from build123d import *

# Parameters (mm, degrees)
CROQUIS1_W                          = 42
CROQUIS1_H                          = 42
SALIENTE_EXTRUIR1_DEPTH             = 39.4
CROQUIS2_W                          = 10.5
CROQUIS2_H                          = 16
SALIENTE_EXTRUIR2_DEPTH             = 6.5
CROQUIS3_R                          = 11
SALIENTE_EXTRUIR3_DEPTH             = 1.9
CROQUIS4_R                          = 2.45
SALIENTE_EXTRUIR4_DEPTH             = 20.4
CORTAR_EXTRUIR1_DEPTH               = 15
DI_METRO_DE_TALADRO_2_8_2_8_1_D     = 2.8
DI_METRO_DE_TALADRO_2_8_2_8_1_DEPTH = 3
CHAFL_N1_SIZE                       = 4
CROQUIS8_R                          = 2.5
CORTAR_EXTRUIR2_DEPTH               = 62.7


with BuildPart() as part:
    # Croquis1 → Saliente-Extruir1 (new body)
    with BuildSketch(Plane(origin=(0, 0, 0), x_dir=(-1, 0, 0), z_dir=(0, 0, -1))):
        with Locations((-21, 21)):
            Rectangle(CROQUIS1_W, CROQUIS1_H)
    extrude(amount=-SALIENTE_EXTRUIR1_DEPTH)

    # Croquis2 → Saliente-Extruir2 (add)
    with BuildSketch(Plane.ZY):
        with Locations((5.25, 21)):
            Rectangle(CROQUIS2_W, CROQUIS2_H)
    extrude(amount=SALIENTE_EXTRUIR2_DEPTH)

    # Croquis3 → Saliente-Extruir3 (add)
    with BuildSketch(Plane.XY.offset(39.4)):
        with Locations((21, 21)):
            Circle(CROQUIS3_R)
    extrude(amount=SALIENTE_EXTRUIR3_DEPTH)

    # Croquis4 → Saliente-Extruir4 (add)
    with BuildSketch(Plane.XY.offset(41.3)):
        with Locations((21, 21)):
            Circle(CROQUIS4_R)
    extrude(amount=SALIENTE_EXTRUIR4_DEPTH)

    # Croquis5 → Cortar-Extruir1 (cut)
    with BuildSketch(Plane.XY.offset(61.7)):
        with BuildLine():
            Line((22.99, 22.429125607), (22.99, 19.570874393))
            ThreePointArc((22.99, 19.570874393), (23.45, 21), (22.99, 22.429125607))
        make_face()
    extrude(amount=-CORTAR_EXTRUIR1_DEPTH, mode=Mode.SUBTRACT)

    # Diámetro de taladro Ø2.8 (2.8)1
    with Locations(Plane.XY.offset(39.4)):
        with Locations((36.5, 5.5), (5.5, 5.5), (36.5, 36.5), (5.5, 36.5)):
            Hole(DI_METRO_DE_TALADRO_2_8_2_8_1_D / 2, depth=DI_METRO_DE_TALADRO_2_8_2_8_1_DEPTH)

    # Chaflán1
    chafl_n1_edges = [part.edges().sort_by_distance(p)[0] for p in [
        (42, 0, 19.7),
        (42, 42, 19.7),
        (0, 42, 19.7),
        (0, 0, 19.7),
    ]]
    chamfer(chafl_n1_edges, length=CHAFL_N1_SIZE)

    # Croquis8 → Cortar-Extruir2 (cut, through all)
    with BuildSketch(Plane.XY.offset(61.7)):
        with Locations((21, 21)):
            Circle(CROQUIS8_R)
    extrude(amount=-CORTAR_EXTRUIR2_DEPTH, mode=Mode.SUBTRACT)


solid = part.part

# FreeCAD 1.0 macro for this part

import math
import FreeCAD as App
import Part
import Sketcher


def edges_at(feature, points):
    """Names of the edges that pass closest to the given points."""
    edges = feature.Shape.Edges
    near = lambda p: min(range(len(edges)), key=lambda i: edges[i].distToShape(Part.Vertex(*p))[0])
    return sorted({f"Edge{near(p) + 1}" for p in points})

doc = App.newDocument("Part")
body = doc.addObject("PartDesign::Body", "Body")

# Sketch on XY plane
sketch1 = body.newObject("Sketcher::SketchObject", "Sketch")
sketch1.AttachmentSupport = (doc.getObject("XY_Plane"), [""])
sketch1.MapMode = "FlatFace"
sketch1.addGeometry([
    Part.LineSegment(App.Vector(42, 42, 0), App.Vector(42, 0, 0)),
    Part.LineSegment(App.Vector(42, 0, 0), App.Vector(0, 0, 0)),
    Part.LineSegment(App.Vector(0, 0, 0), App.Vector(0, 42, 0)),
    Part.LineSegment(App.Vector(0, 42, 0), App.Vector(42, 42, 0)),
], False)
sketch1.addConstraint([
    Sketcher.Constraint("Coincident", 0, 2, 1, 1),
    Sketcher.Constraint("Coincident", 1, 2, 2, 1),
    Sketcher.Constraint("Coincident", 2, 2, 3, 1),
    Sketcher.Constraint("Coincident", 3, 2, 0, 1),
    Sketcher.Constraint("Vertical", 0),
    Sketcher.Constraint("Horizontal", 1),
    Sketcher.Constraint("Vertical", 2),
    Sketcher.Constraint("Horizontal", 3),
    Sketcher.Constraint("Coincident", 1, 2, -1, 1),
    Sketcher.Constraint("Equal", 3, 0),
    Sketcher.Constraint("DistanceX", 1, 2, 1, 1, 42.0),
])
pad1 = body.newObject("PartDesign::Pad", "Pad")
pad1.Profile = sketch1
pad1.Length = 39.4

# Sketch on YZ plane
sketch2 = body.newObject("Sketcher::SketchObject", "Sketch001")
sketch2.AttachmentSupport = (doc.getObject("YZ_Plane"), [""])
sketch2.MapMode = "FlatFace"
sketch2.addGeometry([
    Part.LineSegment(App.Vector(29, 0, 0), App.Vector(13, 0, 0)),
    Part.LineSegment(App.Vector(13, 0, 0), App.Vector(13, 10, 0)),
    Part.LineSegment(App.Vector(13, 10, 0), App.Vector(29, 10, 0)),
    Part.LineSegment(App.Vector(29, 10, 0), App.Vector(29, 0, 0)),
], False)
sketch2.addConstraint([
    Sketcher.Constraint("Coincident", 0, 2, 1, 1),
    Sketcher.Constraint("Coincident", 1, 2, 2, 1),
    Sketcher.Constraint("Coincident", 2, 2, 3, 1),
    Sketcher.Constraint("Coincident", 3, 2, 0, 1),
    Sketcher.Constraint("Horizontal", 0),
    Sketcher.Constraint("Vertical", 1),
    Sketcher.Constraint("Horizontal", 2),
    Sketcher.Constraint("Vertical", 3),
    Sketcher.Constraint("PointOnObject", 0, 2, -1),
    Sketcher.Constraint("DistanceX", 0, 2, 0, 1, 16.0),
    Sketcher.Constraint("DistanceY", 1, 1, 1, 2, 10.5),
    Sketcher.Constraint("DistanceX", -1, 1, 0, 2, 13.0),
])
pad2 = body.newObject("PartDesign::Pad", "Pad001")
pad2.Profile = sketch2
pad2.Length = 6.5
pad2.Reversed = True

# Sketch on XY plane
sketch3 = body.newObject("Sketcher::SketchObject", "Sketch002")
sketch3.AttachmentSupport = (doc.getObject("XY_Plane"), [""])
sketch3.MapMode = "FlatFace"
sketch3.AttachmentOffset = App.Placement(App.Vector(0, 0, 39.4), App.Rotation())
sketch3.addGeometry(Part.Circle(App.Vector(21, 21, 0), App.Vector(0, 0, 1), 11), False)
sketch3.addConstraint([
    Sketcher.Constraint("Diameter", 0, 22.0),
    Sketcher.Constraint("DistanceX", -1, 1, 0, 3, 21.0),
    Sketcher.Constraint("DistanceY", -1, 1, 0, 3, 21.0),
])
pad3 = body.newObject("PartDesign::Pad", "Pad002")
pad3.Profile = sketch3
pad3.Length = 1.9

# Sketch on XY plane
sketch4 = body.newObject("Sketcher::SketchObject", "Sketch003")
sketch4.AttachmentSupport = (doc.getObject("XY_Plane"), [""])
sketch4.MapMode = "FlatFace"
sketch4.AttachmentOffset = App.Placement(App.Vector(0, 0, 41.3), App.Rotation())
sketch4.addGeometry(Part.Circle(App.Vector(21, 21, 0), App.Vector(0, 0, 1), 2.5), False)
sketch4.addConstraint([
    Sketcher.Constraint("Diameter", 0, 4.9),
    Sketcher.Constraint("DistanceX", -1, 1, 0, 3, 21.0),
    Sketcher.Constraint("DistanceY", -1, 1, 0, 3, 21.0),
])
pad4 = body.newObject("PartDesign::Pad", "Pad003")
pad4.Profile = sketch4
pad4.Length = 20.4

# Sketch on XY plane
sketch5 = body.newObject("Sketcher::SketchObject", "Sketch004")
sketch5.AttachmentSupport = (doc.getObject("XY_Plane"), [""])
sketch5.MapMode = "FlatFace"
sketch5.AttachmentOffset = App.Placement(App.Vector(0, 0, 61.7), App.Rotation())
sketch5.addGeometry([
    Part.LineSegment(App.Vector(23, 22.4, 0), App.Vector(23, 19.6, 0)),
    Part.ArcOfCircle(Part.Circle(App.Vector(21, 21, 0), App.Vector(0, 0, 1), 2.5), math.radians(-36), math.radians(36)),
], False)
sketch5.addConstraint([
    Sketcher.Constraint("Coincident", 0, 1, 1, 2),
    Sketcher.Constraint("Coincident", 1, 1, 0, 2),
    Sketcher.Constraint("Vertical", 0),
    Sketcher.Constraint("Radius", 1, 2.45),
    Sketcher.Constraint("DistanceX", -1, 1, 1, 3, 21.0),
    Sketcher.Constraint("DistanceY", -1, 1, 1, 3, 21.0),
    Sketcher.Constraint("DistanceX", -1, 1, 0, 1, 22.99),
])
pocket1 = body.newObject("PartDesign::Pocket", "Pocket")
pocket1.Profile = sketch5
pocket1.Length = 15

# Sketch on XY plane
sketch6 = body.newObject("Sketcher::SketchObject", "Sketch005")
sketch6.AttachmentSupport = (doc.getObject("XY_Plane"), [""])
sketch6.MapMode = "FlatFace"
sketch6.AttachmentOffset = App.Placement(App.Vector(0, 0, 39.4), App.Rotation())
sketch6.addGeometry([
    Part.Circle(App.Vector(36.5, 5.5, 0), App.Vector(0, 0, 1), 1.4),
    Part.Circle(App.Vector(5.5, 5.5, 0), App.Vector(0, 0, 1), 1.4),
    Part.Circle(App.Vector(36.5, 36.5, 0), App.Vector(0, 0, 1), 1.4),
    Part.Circle(App.Vector(5.5, 36.5, 0), App.Vector(0, 0, 1), 1.4),
], False)
sketch6.addConstraint([
    Sketcher.Constraint("Equal", 0, 1),
    Sketcher.Constraint("Equal", 1, 2),
    Sketcher.Constraint("Equal", 2, 3),
    Sketcher.Constraint("Horizontal", 0, 3, 1, 3),
    Sketcher.Constraint("Horizontal", 2, 3, 3, 3),
    Sketcher.Constraint("Vertical", 0, 3, 2, 3),
    Sketcher.Constraint("Vertical", 1, 3, 3, 3),
    Sketcher.Constraint("Diameter", 0, 2.8),
    Sketcher.Constraint("DistanceX", 1, 3, 0, 3, 31.0),
    Sketcher.Constraint("DistanceY", 0, 3, 2, 3, 31.0),
    Sketcher.Constraint("DistanceX", -1, 1, 0, 3, 36.5),
    Sketcher.Constraint("DistanceY", -1, 1, 0, 3, 5.5),
])
doc.recompute()
hole = body.newObject("PartDesign::Hole", "Hole")
hole.Profile = sketch6
hole.ThreadType = "None"
hole.Diameter = 2.8
hole.DepthType = "Dimension"
hole.Depth = 3
hole.DrillPoint = "Flat"
doc.recompute()

chamfer = body.newObject("PartDesign::Chamfer", "Chamfer")
chamfer.Base = (hole, edges_at(hole, [
    (42, 0, 19.7),
    (42, 42, 19.7),
    (0, 42, 19.7),
    (0, 0, 19.7),
]))
chamfer.Size = 4

# Sketch on XY plane
sketch7 = body.newObject("Sketcher::SketchObject", "Sketch006")
sketch7.AttachmentSupport = (doc.getObject("XY_Plane"), [""])
sketch7.MapMode = "FlatFace"
sketch7.AttachmentOffset = App.Placement(App.Vector(0, 0, 61.7), App.Rotation())
sketch7.addGeometry(Part.Circle(App.Vector(21, 21, 0), App.Vector(0, 0, 1), 2.5), False)
sketch7.addConstraint([
    Sketcher.Constraint("Diameter", 0, 5.0),
    Sketcher.Constraint("DistanceX", -1, 1, 0, 3, 21.0),
    Sketcher.Constraint("DistanceY", -1, 1, 0, 3, 21.0),
])
pocket2 = body.newObject("PartDesign::Pocket", "Pocket001")
pocket2.Profile = sketch7
pocket2.Type = "ThroughAll"

doc.recompute()
